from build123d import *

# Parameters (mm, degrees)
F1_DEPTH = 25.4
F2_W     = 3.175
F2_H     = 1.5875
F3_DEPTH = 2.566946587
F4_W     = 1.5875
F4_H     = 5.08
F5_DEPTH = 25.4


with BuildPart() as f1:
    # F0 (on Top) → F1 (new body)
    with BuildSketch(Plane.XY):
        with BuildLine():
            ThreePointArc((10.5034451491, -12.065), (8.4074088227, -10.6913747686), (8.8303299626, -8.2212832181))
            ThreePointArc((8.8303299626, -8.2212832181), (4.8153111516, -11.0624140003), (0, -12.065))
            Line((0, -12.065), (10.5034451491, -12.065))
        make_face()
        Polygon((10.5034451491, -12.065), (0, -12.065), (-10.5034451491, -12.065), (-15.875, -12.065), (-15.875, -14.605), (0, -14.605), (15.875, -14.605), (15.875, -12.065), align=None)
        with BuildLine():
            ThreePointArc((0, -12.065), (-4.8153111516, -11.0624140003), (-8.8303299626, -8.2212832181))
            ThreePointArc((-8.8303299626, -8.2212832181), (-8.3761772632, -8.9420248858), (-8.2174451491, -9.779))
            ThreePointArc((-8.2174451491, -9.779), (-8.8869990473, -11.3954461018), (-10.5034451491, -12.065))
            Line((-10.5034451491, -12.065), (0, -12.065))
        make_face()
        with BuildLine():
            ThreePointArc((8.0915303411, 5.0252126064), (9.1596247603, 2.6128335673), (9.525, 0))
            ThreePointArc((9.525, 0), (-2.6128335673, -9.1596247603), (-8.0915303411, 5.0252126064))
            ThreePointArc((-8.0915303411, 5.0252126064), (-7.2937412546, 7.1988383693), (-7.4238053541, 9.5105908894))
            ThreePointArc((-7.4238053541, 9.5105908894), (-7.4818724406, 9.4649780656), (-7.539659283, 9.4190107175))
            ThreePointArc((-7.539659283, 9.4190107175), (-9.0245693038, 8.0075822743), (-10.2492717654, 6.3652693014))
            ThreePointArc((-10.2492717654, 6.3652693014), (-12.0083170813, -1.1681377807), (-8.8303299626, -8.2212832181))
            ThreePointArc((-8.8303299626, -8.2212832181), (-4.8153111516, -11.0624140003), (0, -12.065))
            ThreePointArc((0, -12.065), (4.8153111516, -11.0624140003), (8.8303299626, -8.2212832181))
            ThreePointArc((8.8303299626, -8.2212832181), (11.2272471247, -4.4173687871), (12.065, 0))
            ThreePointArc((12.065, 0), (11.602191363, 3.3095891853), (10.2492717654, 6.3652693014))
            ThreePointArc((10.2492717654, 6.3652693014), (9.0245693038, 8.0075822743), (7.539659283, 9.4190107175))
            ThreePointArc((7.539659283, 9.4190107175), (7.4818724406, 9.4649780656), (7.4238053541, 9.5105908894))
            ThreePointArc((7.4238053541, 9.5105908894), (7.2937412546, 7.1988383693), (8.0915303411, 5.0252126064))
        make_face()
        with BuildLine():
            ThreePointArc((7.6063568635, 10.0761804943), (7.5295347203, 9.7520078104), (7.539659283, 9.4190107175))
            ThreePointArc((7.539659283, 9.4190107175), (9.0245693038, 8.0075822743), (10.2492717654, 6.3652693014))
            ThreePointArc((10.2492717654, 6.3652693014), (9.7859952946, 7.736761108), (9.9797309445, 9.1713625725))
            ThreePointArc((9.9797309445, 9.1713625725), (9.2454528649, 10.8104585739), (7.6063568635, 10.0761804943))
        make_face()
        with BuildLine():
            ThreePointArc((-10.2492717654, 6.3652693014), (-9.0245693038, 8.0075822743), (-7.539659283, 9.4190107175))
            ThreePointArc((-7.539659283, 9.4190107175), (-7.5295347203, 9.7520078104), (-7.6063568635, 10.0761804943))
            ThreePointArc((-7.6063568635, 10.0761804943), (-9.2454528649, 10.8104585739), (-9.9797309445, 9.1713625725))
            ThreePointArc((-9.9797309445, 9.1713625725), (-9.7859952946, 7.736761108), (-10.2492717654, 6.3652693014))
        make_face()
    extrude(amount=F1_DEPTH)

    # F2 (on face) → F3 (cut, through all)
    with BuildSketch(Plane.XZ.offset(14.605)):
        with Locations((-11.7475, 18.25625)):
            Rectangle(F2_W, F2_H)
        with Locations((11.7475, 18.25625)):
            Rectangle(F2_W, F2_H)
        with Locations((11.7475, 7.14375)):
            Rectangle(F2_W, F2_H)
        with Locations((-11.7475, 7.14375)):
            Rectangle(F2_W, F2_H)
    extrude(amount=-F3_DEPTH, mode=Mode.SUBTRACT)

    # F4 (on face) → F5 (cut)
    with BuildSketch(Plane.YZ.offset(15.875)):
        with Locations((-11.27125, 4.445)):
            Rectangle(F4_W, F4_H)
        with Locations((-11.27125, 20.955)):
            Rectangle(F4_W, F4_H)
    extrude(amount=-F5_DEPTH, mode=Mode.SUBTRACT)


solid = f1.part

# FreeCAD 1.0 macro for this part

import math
import FreeCAD as App
import Part
import Sketcher
from FreeCAD import Vector
Q = App.Units.Quantity

doc = App.newDocument("Part")
body = doc.addObject("PartDesign::Body", "Body")

sketch1 = body.newObject("Sketcher::SketchObject", "Sketch")
sketch1.AttachmentSupport = (doc.getObject("XY_Plane"), [""])
sketch1.MapMode = "FlatFace"
sketch1.addGeometry(Part.ArcOfCircle(Part.Circle(Vector(10.5, -9.78, 0), Vector(0, 0, 1), 2.29), math.radians(137), math.radians(270)), False)
sketch1.addGeometry(Part.ArcOfCircle(Part.Circle(Vector(0, 0, 0), Vector(0, 0, 1), 12.06), math.radians(-43), math.radians(0)), False)
sketch1.addGeometry(Part.ArcOfCircle(Part.Circle(Vector(0, 0, 0), Vector(0, 0, 1), 12.07), math.radians(0), math.radians(32)), False)
sketch1.addGeometry(Part.ArcOfCircle(Part.Circle(Vector(12.95, 8.04, 0), Vector(0, 0, 1), 3.17), math.radians(159), math.radians(212)), False)
sketch1.addGeometry(Part.ArcOfCircle(Part.Circle(Vector(8.79, 9.62, 0), Vector(0, 0, 1), 1.27), math.radians(-21), math.radians(159)), False)
sketch1.addGeometry(Part.ArcOfCircle(Part.Circle(Vector(8.79, 9.62, 0), Vector(0, 0, 1), 1.27), math.radians(159), math.radians(189)), False)
sketch1.addGeometry(Part.ArcOfCircle(Part.Circle(Vector(0, 0, 0), Vector(0, 0, 1), 12.07), math.radians(51.32), math.radians(52.03)), False)
sketch1.addGeometry(Part.ArcOfCircle(Part.Circle(Vector(12.95, 8.04, 0), Vector(0, 0, 1), 5.71), math.radians(165), math.radians(212)), False)
sketch1.addGeometry(Part.ArcOfCircle(Part.Circle(Vector(0, 0, 0), Vector(0, 0, 1), 9.53), math.radians(0), math.radians(32)), False)
sketch1.addGeometry(Part.ArcOfCircle(Part.Circle(Vector(0, 0, 0), Vector(0, 0, 1), 9.53), math.radians(148), math.radians(360)), False)
sketch1.addGeometry(Part.ArcOfCircle(Part.Circle(Vector(-12.95, 8.04, 0), Vector(0, 0, 1), 5.71), math.radians(-32), math.radians(15)), False)
sketch1.addGeometry(Part.ArcOfCircle(Part.Circle(Vector(0, 0, 0), Vector(0, 0, 1), 12.07), math.radians(127.97), math.radians(128.68)), False)
sketch1.addGeometry(Part.ArcOfCircle(Part.Circle(Vector(-8.79, 9.62, 0), Vector(0, 0, 1), 1.27), math.radians(-9), math.radians(21)), False)
sketch1.addGeometry(Part.ArcOfCircle(Part.Circle(Vector(-8.79, 9.62, 0), Vector(0, 0, 1), 1.27), math.radians(21), math.radians(201)), False)
sketch1.addGeometry(Part.ArcOfCircle(Part.Circle(Vector(-12.95, 8.04, 0), Vector(0, 0, 1), 3.17), math.radians(-32), math.radians(21)), False)
sketch1.addGeometry(Part.ArcOfCircle(Part.Circle(Vector(0, 0, 0), Vector(0, 0, 1), 12.06), math.radians(148), math.radians(223)), False)
sketch1.addGeometry(Part.ArcOfCircle(Part.Circle(Vector(-10.5, -9.78, 0), Vector(0, 0, 1), 2.29), math.radians(0), math.radians(43)), False)
sketch1.addGeometry(Part.ArcOfCircle(Part.Circle(Vector(-10.5, -9.78, 0), Vector(0, 0, 1), 2.29), math.radians(-90), math.radians(0)), False)
sketch1.addGeometry(Part.LineSegment(Vector(-10.5, -12.06, 0), Vector(-15.88, -12.06, 0)), False)
sketch1.addGeometry(Part.LineSegment(Vector(-15.88, -12.06, 0), Vector(-15.88, -14.61, 0)), False)
sketch1.addGeometry(Part.LineSegment(Vector(-15.88, -14.61, 0), Vector(15.88, -14.61, 0)), False)
sketch1.addGeometry(Part.LineSegment(Vector(15.88, -14.61, 0), Vector(15.88, -12.06, 0)), False)
sketch1.addGeometry(Part.LineSegment(Vector(15.88, -12.06, 0), Vector(10.5, -12.06, 0)), False)
sketch1.addConstraint(Sketcher.Constraint("Tangent", 0, 1, 1, 1))
sketch1.addConstraint(Sketcher.Constraint("Tangent", 1, 2, 2, 1))
sketch1.addConstraint(Sketcher.Constraint("Tangent", 2, 2, 3, 2))
sketch1.addConstraint(Sketcher.Constraint("Tangent", 3, 1, 4, 1))
sketch1.addConstraint(Sketcher.Constraint("Tangent", 4, 2, 5, 1))
sketch1.addConstraint(Sketcher.Constraint("Coincident", 5, 2, 6, 1))
sketch1.addConstraint(Sketcher.Constraint("Coincident", 6, 2, 7, 1))
sketch1.addConstraint(Sketcher.Constraint("Tangent", 7, 2, 8, 2))
sketch1.addConstraint(Sketcher.Constraint("Tangent", 8, 1, 9, 2))
sketch1.addConstraint(Sketcher.Constraint("Tangent", 9, 1, 10, 1))
sketch1.addConstraint(Sketcher.Constraint("Coincident", 10, 2, 11, 1))
sketch1.addConstraint(Sketcher.Constraint("Coincident", 11, 2, 12, 1))
sketch1.addConstraint(Sketcher.Constraint("Tangent", 12, 2, 13, 1))
sketch1.addConstraint(Sketcher.Constraint("Tangent", 13, 2, 14, 2))
sketch1.addConstraint(Sketcher.Constraint("Tangent", 14, 1, 15, 1))
sketch1.addConstraint(Sketcher.Constraint("Tangent", 15, 2, 16, 2))
sketch1.addConstraint(Sketcher.Constraint("Tangent", 16, 1, 17, 2))
sketch1.addConstraint(Sketcher.Constraint("Tangent", 17, 1, 18, 1))
sketch1.addConstraint(Sketcher.Constraint("Coincident", 18, 2, 19, 1))
sketch1.addConstraint(Sketcher.Constraint("Coincident", 19, 2, 20, 1))
sketch1.addConstraint(Sketcher.Constraint("Coincident", 20, 2, 21, 1))
sketch1.addConstraint(Sketcher.Constraint("Coincident", 21, 2, 22, 1))
sketch1.addConstraint(Sketcher.Constraint("Tangent", 22, 2, 0, 2))
sketch1.addConstraint(Sketcher.Constraint("Horizontal", 18))
sketch1.addConstraint(Sketcher.Constraint("Vertical", 19))
sketch1.addConstraint(Sketcher.Constraint("Horizontal", 20))
sketch1.addConstraint(Sketcher.Constraint("Vertical", 21))
sketch1.addConstraint(Sketcher.Constraint("Horizontal", 22))
sketch1.addConstraint(Sketcher.Constraint("Coincident", 1, 3, -1, 1))
sketch1.addConstraint(Sketcher.Constraint("Coincident", 6, 3, -1, 1))
sketch1.addConstraint(Sketcher.Constraint("Coincident", 8, 3, -1, 1))
sketch1.addConstraint(Sketcher.Constraint("Coincident", 11, 3, -1, 1))
sketch1.addConstraint(Sketcher.Constraint("Coincident", 15, 3, -1, 1))
sketch1.addConstraint(Sketcher.Constraint("Coincident", 7, 3, 3, 3))
sketch1.addConstraint(Sketcher.Constraint("Coincident", 14, 3, 10, 3))
sketch1.addConstraint(Sketcher.Constraint("Equal", 1, 2))
sketch1.addConstraint(Sketcher.Constraint("Equal", 4, 5))
sketch1.addConstraint(Sketcher.Constraint("Equal", 8, 9))
sketch1.addConstraint(Sketcher.Constraint("Equal", 7, 10))
sketch1.addConstraint(Sketcher.Constraint("Equal", 6, 11))
sketch1.addConstraint(Sketcher.Constraint("Equal", 5, 12))
sketch1.addConstraint(Sketcher.Constraint("Equal", 12, 13))
sketch1.addConstraint(Sketcher.Constraint("Equal", 3, 14))
sketch1.addConstraint(Sketcher.Constraint("Equal", 0, 16))
sketch1.addConstraint(Sketcher.Constraint("Equal", 16, 17))
sketch1.addConstraint(Sketcher.Constraint("Symmetric", 4, 3, 12, 3, -2))
sketch1.addConstraint(Sketcher.Constraint("Symmetric", 18, 2, 21, 2, -2))
sketch1.addConstraint(Sketcher.Constraint("PointOnObject", 1, 2, -1))
sketch1.addConstraint(Sketcher.Constraint("PointOnObject", 8, 1, -1))
sketch1.addConstraint(Sketcher.Constraint("Horizontal", 4, 2, 12, 2))
sketch1.addConstraint(Sketcher.Constraint("Horizontal", 17, 3, 16, 1))
sketch1.addConstraint(Sketcher.Constraint("Radius", 0, Q("0.09 in")))
sketch1.addConstraint(Sketcher.Constraint("Radius", 4, Q("0.05 in")))
sketch1.addConstraint(Sketcher.Constraint("DistanceY", 19, 2, 19, 1, Q("0.1 in")))
sketch1.addConstraint(Sketcher.Constraint("Radius", 1, Q("0.475 in")))
sketch1.addConstraint(Sketcher.Constraint("Radius", 3, Q("0.125 in")))
sketch1.addConstraint(Sketcher.Constraint("Radius", 6, Q("0.4750001 in")))
sketch1.addConstraint(Sketcher.Constraint("Radius", 7, Q("0.225 in")))
sketch1.addConstraint(Sketcher.Constraint("DistanceX", 20, 1, 20, 2, Q("1.25 in")))
sketch1.addConstraint(Sketcher.Constraint("DistanceY", 0, 3, -1, 1, Q("0.385 in")))
sketch1.addConstraint(Sketcher.Constraint("DistanceY", -1, 1, 4, 2, Q("0.3967 in")))
sketch1.addConstraint(Sketcher.Constraint("DistanceX", 3, 1, 7, 3, Q("0.1167999 in")))
sketch1.addConstraint(Sketcher.Constraint("DistanceX", 4, 3, 0, 3, 1.710401))
pad1 = body.newObject("PartDesign::Pad", "Pad")
pad1.Profile = sketch1
pad1.Length = Q("1 in")

sketch2 = body.newObject("Sketcher::SketchObject", "Sketch001")
sketch2.AttachmentSupport = (doc.getObject("XZ_Plane"), [""])
sketch2.MapMode = "FlatFace"
sketch2.AttachmentOffset = App.Placement(Vector(0, 0, 0.575 * 25.4), App.Rotation())
sketch2.addGeometry(Part.LineSegment(Vector(-13.3, 19.1, 0), Vector(-13.3, 17.5, 0)), False)
sketch2.addGeometry(Part.LineSegment(Vector(-13.3, 17.5, 0), Vector(-10.2, 17.5, 0)), False)
sketch2.addGeometry(Part.LineSegment(Vector(-10.2, 17.5, 0), Vector(-10.2, 19.1, 0)), False)
sketch2.addGeometry(Part.LineSegment(Vector(-10.2, 19.1, 0), Vector(-13.3, 19.1, 0)), False)
sketch2.addGeometry(Part.LineSegment(Vector(10.2, 19.1, 0), Vector(10.2, 17.5, 0)), False)
sketch2.addGeometry(Part.LineSegment(Vector(10.2, 17.5, 0), Vector(13.3, 17.5, 0)), False)
sketch2.addGeometry(Part.LineSegment(Vector(13.3, 17.5, 0), Vector(13.3, 19.1, 0)), False)
sketch2.addGeometry(Part.LineSegment(Vector(13.3, 19.1, 0), Vector(10.2, 19.1, 0)), False)
sketch2.addGeometry(Part.LineSegment(Vector(10.2, 7.9, 0), Vector(10.2, 6.3, 0)), False)
sketch2.addGeometry(Part.LineSegment(Vector(10.2, 6.3, 0), Vector(13.3, 6.3, 0)), False)
sketch2.addGeometry(Part.LineSegment(Vector(13.3, 6.3, 0), Vector(13.3, 7.9, 0)), False)
sketch2.addGeometry(Part.LineSegment(Vector(13.3, 7.9, 0), Vector(10.2, 7.9, 0)), False)
sketch2.addGeometry(Part.LineSegment(Vector(-13.3, 7.9, 0), Vector(-13.3, 6.3, 0)), False)
sketch2.addGeometry(Part.LineSegment(Vector(-13.3, 6.3, 0), Vector(-10.2, 6.3, 0)), False)
sketch2.addGeometry(Part.LineSegment(Vector(-10.2, 6.3, 0), Vector(-10.2, 7.9, 0)), False)
sketch2.addGeometry(Part.LineSegment(Vector(-10.2, 7.9, 0), Vector(-13.3, 7.9, 0)), False)
sketch2.addConstraint(Sketcher.Constraint("Coincident", 0, 2, 1, 1))
sketch2.addConstraint(Sketcher.Constraint("Coincident", 1, 2, 2, 1))
sketch2.addConstraint(Sketcher.Constraint("Coincident", 2, 2, 3, 1))
sketch2.addConstraint(Sketcher.Constraint("Coincident", 3, 2, 0, 1))
sketch2.addConstraint(Sketcher.Constraint("Coincident", 4, 2, 5, 1))
sketch2.addConstraint(Sketcher.Constraint("Coincident", 5, 2, 6, 1))
sketch2.addConstraint(Sketcher.Constraint("Coincident", 6, 2, 7, 1))
sketch2.addConstraint(Sketcher.Constraint("Coincident", 7, 2, 4, 1))
sketch2.addConstraint(Sketcher.Constraint("Coincident", 8, 2, 9, 1))
sketch2.addConstraint(Sketcher.Constraint("Coincident", 9, 2, 10, 1))
sketch2.addConstraint(Sketcher.Constraint("Coincident", 10, 2, 11, 1))
sketch2.addConstraint(Sketcher.Constraint("Coincident", 11, 2, 8, 1))
sketch2.addConstraint(Sketcher.Constraint("Coincident", 12, 2, 13, 1))
sketch2.addConstraint(Sketcher.Constraint("Coincident", 13, 2, 14, 1))
sketch2.addConstraint(Sketcher.Constraint("Coincident", 14, 2, 15, 1))
sketch2.addConstraint(Sketcher.Constraint("Coincident", 15, 2, 12, 1))
sketch2.addConstraint(Sketcher.Constraint("Vertical", 0))
sketch2.addConstraint(Sketcher.Constraint("Horizontal", 1))
sketch2.addConstraint(Sketcher.Constraint("Vertical", 2))
sketch2.addConstraint(Sketcher.Constraint("Horizontal", 3))
sketch2.addConstraint(Sketcher.Constraint("Vertical", 4))
sketch2.addConstraint(Sketcher.Constraint("Horizontal", 5))
sketch2.addConstraint(Sketcher.Constraint("Vertical", 6))
sketch2.addConstraint(Sketcher.Constraint("Horizontal", 7))
sketch2.addConstraint(Sketcher.Constraint("Vertical", 8))
sketch2.addConstraint(Sketcher.Constraint("Horizontal", 9))
sketch2.addConstraint(Sketcher.Constraint("Vertical", 10))
sketch2.addConstraint(Sketcher.Constraint("Horizontal", 11))
sketch2.addConstraint(Sketcher.Constraint("Vertical", 12))
sketch2.addConstraint(Sketcher.Constraint("Horizontal", 13))
sketch2.addConstraint(Sketcher.Constraint("Vertical", 14))
sketch2.addConstraint(Sketcher.Constraint("Horizontal", 15))
sketch2.addConstraint(Sketcher.Constraint("Symmetric", 1, 2, 4, 2, -2))
sketch2.addConstraint(Sketcher.Constraint("Symmetric", 3, 2, 6, 2, -2))
sketch2.addConstraint(Sketcher.Constraint("Symmetric", 9, 2, 12, 2, -2))
sketch2.addConstraint(Sketcher.Constraint("Symmetric", 11, 2, 14, 2, -2))
sketch2.addConstraint(Sketcher.Constraint("Vertical", 7, 2, 8, 2))
sketch2.addConstraint(Sketcher.Constraint("Vertical", 6, 2, 9, 2))
sketch2.addConstraint(Sketcher.Constraint("Equal", 6, 8))
sketch2.addConstraint(Sketcher.Constraint("DistanceX", 1, 2, -1, 1, Q("0.4 in")))
sketch2.addConstraint(Sketcher.Constraint("DistanceY", 8, 2, 7, 2, Q("0.5 in")))
sketch2.addConstraint(Sketcher.Constraint("DistanceX", 1, 1, 1, 2, Q("0.125 in")))
sketch2.addConstraint(Sketcher.Constraint("DistanceY", 0, 2, 0, 1, Q("0.0625 in")))
sketch2.addConstraint(Sketcher.Constraint("DistanceY", -1, 1, 2, 2, Q("0.75 in")))
pocket1 = body.newObject("PartDesign::Pocket", "Pocket")
pocket1.Profile = sketch2
pocket1.Length = 2.566947

sketch3 = body.newObject("Sketcher::SketchObject", "Sketch002")
sketch3.AttachmentSupport = (doc.getObject("YZ_Plane"), [""])
sketch3.MapMode = "FlatFace"
sketch3.AttachmentOffset = App.Placement(Vector(0, 0, 0.625 * 25.4), App.Rotation())
sketch3.addGeometry(Part.LineSegment(Vector(-12.1, 7, 0), Vector(-12.1, 1.9, 0)), False)
sketch3.addGeometry(Part.LineSegment(Vector(-12.1, 1.9, 0), Vector(-10.5, 1.9, 0)), False)
sketch3.addGeometry(Part.LineSegment(Vector(-10.5, 1.9, 0), Vector(-10.5, 7, 0)), False)
sketch3.addGeometry(Part.LineSegment(Vector(-10.5, 7, 0), Vector(-12.1, 7, 0)), False)
sketch3.addGeometry(Part.LineSegment(Vector(-12.1, 23.5, 0), Vector(-12.1, 18.4, 0)), False)
sketch3.addGeometry(Part.LineSegment(Vector(-12.1, 18.4, 0), Vector(-10.5, 18.4, 0)), False)
sketch3.addGeometry(Part.LineSegment(Vector(-10.5, 18.4, 0), Vector(-10.5, 23.5, 0)), False)
sketch3.addGeometry(Part.LineSegment(Vector(-10.5, 23.5, 0), Vector(-12.1, 23.5, 0)), False)
sketch3.addConstraint(Sketcher.Constraint("Coincident", 0, 2, 1, 1))
sketch3.addConstraint(Sketcher.Constraint("Coincident", 1, 2, 2, 1))
sketch3.addConstraint(Sketcher.Constraint("Coincident", 2, 2, 3, 1))
sketch3.addConstraint(Sketcher.Constraint("Coincident", 3, 2, 0, 1))
sketch3.addConstraint(Sketcher.Constraint("Coincident", 4, 2, 5, 1))
sketch3.addConstraint(Sketcher.Constraint("Coincident", 5, 2, 6, 1))
sketch3.addConstraint(Sketcher.Constraint("Coincident", 6, 2, 7, 1))
sketch3.addConstraint(Sketcher.Constraint("Coincident", 7, 2, 4, 1))
sketch3.addConstraint(Sketcher.Constraint("Vertical", 0))
sketch3.addConstraint(Sketcher.Constraint("Horizontal", 1))
sketch3.addConstraint(Sketcher.Constraint("Vertical", 2))
sketch3.addConstraint(Sketcher.Constraint("Horizontal", 3))
sketch3.addConstraint(Sketcher.Constraint("Vertical", 4))
sketch3.addConstraint(Sketcher.Constraint("Horizontal", 5))
sketch3.addConstraint(Sketcher.Constraint("Vertical", 6))
sketch3.addConstraint(Sketcher.Constraint("Horizontal", 7))
sketch3.addConstraint(Sketcher.Constraint("Vertical", 3, 2, 4, 2))
sketch3.addConstraint(Sketcher.Constraint("Vertical", 2, 2, 5, 2))
sketch3.addConstraint(Sketcher.Constraint("Equal", 2, 4))
sketch3.addConstraint(Sketcher.Constraint("DistanceY", 0, 2, 0, 1, Q("0.2 in")))
sketch3.addConstraint(Sketcher.Constraint("DistanceX", 1, 1, 1, 2, Q("0.0625 in")))
sketch3.addConstraint(Sketcher.Constraint("DistanceY", 3, 2, 4, 2, Q("0.45 in")))
sketch3.addConstraint(Sketcher.Constraint("DistanceX", 0, 2, -1, 1, Q("0.475 in")))
sketch3.addConstraint(Sketcher.Constraint("DistanceY", -1, 1, 0, 2, Q("0.075 in")))
pocket2 = body.newObject("PartDesign::Pocket", "Pocket001")
pocket2.Profile = sketch3
pocket2.Length = Q("1 in")

doc.recompute()
